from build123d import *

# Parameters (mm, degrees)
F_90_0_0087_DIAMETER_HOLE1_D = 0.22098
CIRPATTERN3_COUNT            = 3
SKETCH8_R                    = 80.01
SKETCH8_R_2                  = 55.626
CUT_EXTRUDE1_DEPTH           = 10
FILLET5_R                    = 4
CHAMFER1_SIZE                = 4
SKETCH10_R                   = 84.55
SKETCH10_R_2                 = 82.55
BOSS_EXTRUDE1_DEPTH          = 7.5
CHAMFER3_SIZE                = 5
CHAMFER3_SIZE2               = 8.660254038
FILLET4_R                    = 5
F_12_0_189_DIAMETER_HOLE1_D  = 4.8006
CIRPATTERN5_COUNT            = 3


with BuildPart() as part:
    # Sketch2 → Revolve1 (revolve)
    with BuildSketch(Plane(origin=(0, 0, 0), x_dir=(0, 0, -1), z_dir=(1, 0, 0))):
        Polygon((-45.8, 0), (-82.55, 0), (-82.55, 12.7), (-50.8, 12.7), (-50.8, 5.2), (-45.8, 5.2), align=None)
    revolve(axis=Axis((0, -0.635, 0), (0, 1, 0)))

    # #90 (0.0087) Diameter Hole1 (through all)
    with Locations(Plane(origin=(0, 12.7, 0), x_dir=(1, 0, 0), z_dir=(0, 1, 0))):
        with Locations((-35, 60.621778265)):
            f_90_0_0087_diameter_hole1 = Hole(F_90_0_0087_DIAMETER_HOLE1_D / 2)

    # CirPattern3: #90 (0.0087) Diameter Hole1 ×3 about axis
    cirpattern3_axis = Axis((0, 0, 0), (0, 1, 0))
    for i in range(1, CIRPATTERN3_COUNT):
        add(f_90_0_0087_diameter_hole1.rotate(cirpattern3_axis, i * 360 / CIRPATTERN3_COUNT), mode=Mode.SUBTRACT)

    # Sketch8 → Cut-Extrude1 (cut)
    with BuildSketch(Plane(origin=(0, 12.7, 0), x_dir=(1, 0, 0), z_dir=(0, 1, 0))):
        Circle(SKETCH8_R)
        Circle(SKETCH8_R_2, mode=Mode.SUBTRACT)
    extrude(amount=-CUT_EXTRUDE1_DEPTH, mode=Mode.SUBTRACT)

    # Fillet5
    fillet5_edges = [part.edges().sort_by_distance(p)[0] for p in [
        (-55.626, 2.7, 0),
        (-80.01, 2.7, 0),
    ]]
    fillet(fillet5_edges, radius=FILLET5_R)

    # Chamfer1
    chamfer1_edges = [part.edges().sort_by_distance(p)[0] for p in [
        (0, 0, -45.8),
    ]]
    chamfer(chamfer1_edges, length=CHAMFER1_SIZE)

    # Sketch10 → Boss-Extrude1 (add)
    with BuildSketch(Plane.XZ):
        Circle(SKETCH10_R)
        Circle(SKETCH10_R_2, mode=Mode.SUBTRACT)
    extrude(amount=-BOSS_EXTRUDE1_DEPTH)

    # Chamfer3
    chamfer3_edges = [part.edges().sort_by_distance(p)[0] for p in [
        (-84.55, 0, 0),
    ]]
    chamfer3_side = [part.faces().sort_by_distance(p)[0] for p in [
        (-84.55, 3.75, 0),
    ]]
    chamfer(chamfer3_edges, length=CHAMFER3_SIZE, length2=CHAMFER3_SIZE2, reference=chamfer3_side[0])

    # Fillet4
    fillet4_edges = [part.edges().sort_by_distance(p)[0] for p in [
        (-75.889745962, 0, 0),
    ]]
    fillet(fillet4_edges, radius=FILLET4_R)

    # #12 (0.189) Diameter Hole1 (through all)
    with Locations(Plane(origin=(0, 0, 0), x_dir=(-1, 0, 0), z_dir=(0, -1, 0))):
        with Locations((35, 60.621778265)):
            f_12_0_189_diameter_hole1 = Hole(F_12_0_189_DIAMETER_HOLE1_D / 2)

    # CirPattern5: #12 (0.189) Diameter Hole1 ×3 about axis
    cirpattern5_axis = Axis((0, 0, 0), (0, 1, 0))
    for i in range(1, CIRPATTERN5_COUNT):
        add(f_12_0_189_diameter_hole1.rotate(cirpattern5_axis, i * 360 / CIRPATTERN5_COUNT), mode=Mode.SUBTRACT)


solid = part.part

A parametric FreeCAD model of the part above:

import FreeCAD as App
import Part
import Sketcher
from FreeCAD import Vector
Q = App.Units.Quantity


def edges_at(feature, points):
    """Names of the edges that pass closest to the given points."""
    edges = feature.Shape.Edges
    near = lambda p: min(range(len(edges)), key=lambda i: edges[i].distToShape(Part.Vertex(*p))[0])
    return sorted({f"Edge{near(p) + 1}" for p in points})


def add_polygon(sketch, points):
    """Adds a closed chain of lines whose ends are joined by coincident constraints."""
    first, n = sketch.GeometryCount, len(points)
    for a, b in zip(points, points[1:] + points[:1]):
        sketch.addGeometry(Part.LineSegment(App.Vector(*a, 0), App.Vector(*b, 0)), False)
    for i in range(n):
        sketch.addConstraint(Sketcher.Constraint("Coincident", first + i, 2, first + (i + 1) % n, 1))

doc = App.newDocument("Part")
body = doc.addObject("PartDesign::Body", "Body")

# Sketch on YZ plane
sketch1 = body.newObject("Sketcher::SketchObject", "Sketch")
sketch1.AttachmentSupport = (doc.getObject("YZ_Plane"), [""])
sketch1.MapMode = "FlatFace"
add_polygon(sketch1, [(0, 82.55), (0, 45.8), (5.2, 45.8), (5.2, 50.8), (12.7, 50.8), (12.7, 82.55)])  # lines 0-5
sketch1.addConstraint([
    Sketcher.Constraint("Vertical", 0),
    Sketcher.Constraint("Horizontal", 1),
    Sketcher.Constraint("Vertical", 2),
    Sketcher.Constraint("Horizontal", 3),
    Sketcher.Constraint("Vertical", 4),
    Sketcher.Constraint("Horizontal", 5),
    Sketcher.Constraint("PointOnObject", 0, 2, -2),
    Sketcher.Constraint("DistanceY", 2, 1, 2, 2, Q("5 mm")),
    Sketcher.Constraint("DistanceX", 1, 1, 1, 2, Q("5.2 mm")),
    Sketcher.Constraint("DistanceX", 3, 1, 3, 2, Q("7.5 mm")),
    Sketcher.Constraint("DistanceY", 0, 2, 0, 1, Q("36.75 mm")),
    Sketcher.Constraint("DistanceY", -1, 1, 0, 2, Q("45.8 mm")),
])
revolution = body.newObject("PartDesign::Revolution", "Revolution")
revolution.Profile = sketch1
revolution.ReferenceAxis = (sketch1, ["H_Axis"])
revolution.Angle = 360

# Sketch on XZ plane
sketch2 = body.newObject("Sketcher::SketchObject", "Sketch001")
sketch2.AttachmentSupport = (doc.getObject("XZ_Plane"), [""])
sketch2.MapMode = "FlatFace"
sketch2.AttachmentOffset = App.Placement(Vector(0, 0, -12.7), App.Rotation())
sketch2.addGeometry(Part.Circle(Vector(-35, -60.621778, 0), Vector(0, 0, 1), 0.11049), False)
sketch2.addConstraint([
    Sketcher.Constraint("DistanceX", 0, 3, -1, 1, Q("35 mm")),
    Sketcher.Constraint("Diameter", 0, Q("0.22098 mm")),
    Sketcher.Constraint("DistanceY", 0, 3, -1, 1, Q("60.621778 mm")),
])
doc.recompute()
hole = body.newObject("PartDesign::Hole", "Hole")
hole.Profile = sketch2
hole.ThreadType = "None"
hole.Diameter = 0.22098
hole.DepthType = "ThroughAll"
hole.Reversed = True
doc.recompute()

polarpattern = body.newObject("PartDesign::PolarPattern", "PolarPattern")
polarpattern.Originals = [hole]
polarpattern.Axis = (doc.getObject("Y_Axis"), [""])
polarpattern.Angle = 360
polarpattern.Occurrences = 3
body.Tip = polarpattern

# Sketch on XZ plane
sketch3 = body.newObject("Sketcher::SketchObject", "Sketch002")
sketch3.AttachmentSupport = (doc.getObject("XZ_Plane"), [""])
sketch3.MapMode = "FlatFace"
sketch3.AttachmentOffset = App.Placement(Vector(0, 0, -12.7), App.Rotation())
sketch3.addGeometry([
    Part.Circle(Vector(0, 0, 0), Vector(0, 0, 1), 80.01),
    Part.Circle(Vector(0, 0, 0), Vector(0, 0, 1), 55.626),
], False)
sketch3.addConstraint([
    Sketcher.Constraint("Coincident", 0, 3, -1, 1),
    Sketcher.Constraint("Coincident", 1, 3, -1, 1),
    Sketcher.Constraint("Diameter", 0, Q("160.02 mm")),
    Sketcher.Constraint("Diameter", 1, Q("111.252 mm")),
])
pocket1 = body.newObject("PartDesign::Pocket", "Pocket")
pocket1.Profile = sketch3
pocket1.Length = 10
pocket1.Reversed = True
doc.recompute()

fillet = body.newObject("PartDesign::Fillet", "Fillet")
fillet.Base = (pocket1, edges_at(pocket1, [(-55.626, 2.7, 0), (-80.01, 2.7, 0)]))
fillet.Radius = 4
doc.recompute()

chamfer = body.newObject("PartDesign::Chamfer", "Chamfer")
chamfer.Base = (fillet, edges_at(fillet, [(0, 0, -45.8)]))
chamfer.Size = 4

# Sketch on XZ plane
sketch4 = body.newObject("Sketcher::SketchObject", "Sketch003")
sketch4.AttachmentSupport = (doc.getObject("XZ_Plane"), [""])
sketch4.MapMode = "FlatFace"
sketch4.addGeometry([
    Part.Circle(Vector(0, 0, 0), Vector(0, 0, 1), 84.55),
    Part.Circle(Vector(0, 0, 0), Vector(0, 0, 1), 82.55),
], False)
sketch4.addConstraint([
    Sketcher.Constraint("Coincident", 0, 3, -1, 1),
    Sketcher.Constraint("Coincident", 1, 3, -1, 1),
    Sketcher.Constraint("Diameter", 0, Q("169.1 mm")),
    Sketcher.Constraint("Diameter", 1, Q("165.1 mm")),
])
pad1 = body.newObject("PartDesign::Pad", "Pad")
pad1.Profile = sketch4
pad1.Length = 7.5
pad1.Reversed = True
doc.recompute()

chamfer2 = body.newObject("PartDesign::Chamfer", "Chamfer001")
chamfer2.Base = (pad1, edges_at(pad1, [(-84.55, 0, 0)]))
chamfer2.ChamferType = "Two distances"
chamfer2.Size = 5
chamfer2.Size2 = 8.660254
doc.recompute()

fillet2 = body.newObject("PartDesign::Fillet", "Fillet001")
fillet2.Base = (chamfer2, edges_at(chamfer2, [(-75.89, 0, 0)]))
fillet2.Radius = 5

# Sketch on XZ plane
sketch5 = body.newObject("Sketcher::SketchObject", "Sketch004")
sketch5.AttachmentSupport = (doc.getObject("XZ_Plane"), [""])
sketch5.MapMode = "FlatFace"
sketch5.addGeometry(Part.Circle(Vector(-35, -60.621778, 0), Vector(0, 0, 1), 2.4003), False)
sketch5.addConstraint([
    Sketcher.Constraint("DistanceX", 0, 3, -1, 1, Q("35 mm")),
    Sketcher.Constraint("Diameter", 0, Q("4.8006 mm")),
    Sketcher.Constraint("DistanceY", 0, 3, -1, 1, Q("60.621778 mm")),
])
doc.recompute()
hole2 = body.newObject("PartDesign::Hole", "Hole001")
hole2.Profile = sketch5
hole2.ThreadType = "None"
hole2.Diameter = 4.8006
hole2.DepthType = "ThroughAll"
doc.recompute()

polarpattern2 = body.newObject("PartDesign::PolarPattern", "PolarPattern001")
polarpattern2.Originals = [hole2]
polarpattern2.Axis = (doc.getObject("Y_Axis"), [""])
polarpattern2.Angle = 360
polarpattern2.Occurrences = 3
body.Tip = polarpattern2

doc.recompute()
